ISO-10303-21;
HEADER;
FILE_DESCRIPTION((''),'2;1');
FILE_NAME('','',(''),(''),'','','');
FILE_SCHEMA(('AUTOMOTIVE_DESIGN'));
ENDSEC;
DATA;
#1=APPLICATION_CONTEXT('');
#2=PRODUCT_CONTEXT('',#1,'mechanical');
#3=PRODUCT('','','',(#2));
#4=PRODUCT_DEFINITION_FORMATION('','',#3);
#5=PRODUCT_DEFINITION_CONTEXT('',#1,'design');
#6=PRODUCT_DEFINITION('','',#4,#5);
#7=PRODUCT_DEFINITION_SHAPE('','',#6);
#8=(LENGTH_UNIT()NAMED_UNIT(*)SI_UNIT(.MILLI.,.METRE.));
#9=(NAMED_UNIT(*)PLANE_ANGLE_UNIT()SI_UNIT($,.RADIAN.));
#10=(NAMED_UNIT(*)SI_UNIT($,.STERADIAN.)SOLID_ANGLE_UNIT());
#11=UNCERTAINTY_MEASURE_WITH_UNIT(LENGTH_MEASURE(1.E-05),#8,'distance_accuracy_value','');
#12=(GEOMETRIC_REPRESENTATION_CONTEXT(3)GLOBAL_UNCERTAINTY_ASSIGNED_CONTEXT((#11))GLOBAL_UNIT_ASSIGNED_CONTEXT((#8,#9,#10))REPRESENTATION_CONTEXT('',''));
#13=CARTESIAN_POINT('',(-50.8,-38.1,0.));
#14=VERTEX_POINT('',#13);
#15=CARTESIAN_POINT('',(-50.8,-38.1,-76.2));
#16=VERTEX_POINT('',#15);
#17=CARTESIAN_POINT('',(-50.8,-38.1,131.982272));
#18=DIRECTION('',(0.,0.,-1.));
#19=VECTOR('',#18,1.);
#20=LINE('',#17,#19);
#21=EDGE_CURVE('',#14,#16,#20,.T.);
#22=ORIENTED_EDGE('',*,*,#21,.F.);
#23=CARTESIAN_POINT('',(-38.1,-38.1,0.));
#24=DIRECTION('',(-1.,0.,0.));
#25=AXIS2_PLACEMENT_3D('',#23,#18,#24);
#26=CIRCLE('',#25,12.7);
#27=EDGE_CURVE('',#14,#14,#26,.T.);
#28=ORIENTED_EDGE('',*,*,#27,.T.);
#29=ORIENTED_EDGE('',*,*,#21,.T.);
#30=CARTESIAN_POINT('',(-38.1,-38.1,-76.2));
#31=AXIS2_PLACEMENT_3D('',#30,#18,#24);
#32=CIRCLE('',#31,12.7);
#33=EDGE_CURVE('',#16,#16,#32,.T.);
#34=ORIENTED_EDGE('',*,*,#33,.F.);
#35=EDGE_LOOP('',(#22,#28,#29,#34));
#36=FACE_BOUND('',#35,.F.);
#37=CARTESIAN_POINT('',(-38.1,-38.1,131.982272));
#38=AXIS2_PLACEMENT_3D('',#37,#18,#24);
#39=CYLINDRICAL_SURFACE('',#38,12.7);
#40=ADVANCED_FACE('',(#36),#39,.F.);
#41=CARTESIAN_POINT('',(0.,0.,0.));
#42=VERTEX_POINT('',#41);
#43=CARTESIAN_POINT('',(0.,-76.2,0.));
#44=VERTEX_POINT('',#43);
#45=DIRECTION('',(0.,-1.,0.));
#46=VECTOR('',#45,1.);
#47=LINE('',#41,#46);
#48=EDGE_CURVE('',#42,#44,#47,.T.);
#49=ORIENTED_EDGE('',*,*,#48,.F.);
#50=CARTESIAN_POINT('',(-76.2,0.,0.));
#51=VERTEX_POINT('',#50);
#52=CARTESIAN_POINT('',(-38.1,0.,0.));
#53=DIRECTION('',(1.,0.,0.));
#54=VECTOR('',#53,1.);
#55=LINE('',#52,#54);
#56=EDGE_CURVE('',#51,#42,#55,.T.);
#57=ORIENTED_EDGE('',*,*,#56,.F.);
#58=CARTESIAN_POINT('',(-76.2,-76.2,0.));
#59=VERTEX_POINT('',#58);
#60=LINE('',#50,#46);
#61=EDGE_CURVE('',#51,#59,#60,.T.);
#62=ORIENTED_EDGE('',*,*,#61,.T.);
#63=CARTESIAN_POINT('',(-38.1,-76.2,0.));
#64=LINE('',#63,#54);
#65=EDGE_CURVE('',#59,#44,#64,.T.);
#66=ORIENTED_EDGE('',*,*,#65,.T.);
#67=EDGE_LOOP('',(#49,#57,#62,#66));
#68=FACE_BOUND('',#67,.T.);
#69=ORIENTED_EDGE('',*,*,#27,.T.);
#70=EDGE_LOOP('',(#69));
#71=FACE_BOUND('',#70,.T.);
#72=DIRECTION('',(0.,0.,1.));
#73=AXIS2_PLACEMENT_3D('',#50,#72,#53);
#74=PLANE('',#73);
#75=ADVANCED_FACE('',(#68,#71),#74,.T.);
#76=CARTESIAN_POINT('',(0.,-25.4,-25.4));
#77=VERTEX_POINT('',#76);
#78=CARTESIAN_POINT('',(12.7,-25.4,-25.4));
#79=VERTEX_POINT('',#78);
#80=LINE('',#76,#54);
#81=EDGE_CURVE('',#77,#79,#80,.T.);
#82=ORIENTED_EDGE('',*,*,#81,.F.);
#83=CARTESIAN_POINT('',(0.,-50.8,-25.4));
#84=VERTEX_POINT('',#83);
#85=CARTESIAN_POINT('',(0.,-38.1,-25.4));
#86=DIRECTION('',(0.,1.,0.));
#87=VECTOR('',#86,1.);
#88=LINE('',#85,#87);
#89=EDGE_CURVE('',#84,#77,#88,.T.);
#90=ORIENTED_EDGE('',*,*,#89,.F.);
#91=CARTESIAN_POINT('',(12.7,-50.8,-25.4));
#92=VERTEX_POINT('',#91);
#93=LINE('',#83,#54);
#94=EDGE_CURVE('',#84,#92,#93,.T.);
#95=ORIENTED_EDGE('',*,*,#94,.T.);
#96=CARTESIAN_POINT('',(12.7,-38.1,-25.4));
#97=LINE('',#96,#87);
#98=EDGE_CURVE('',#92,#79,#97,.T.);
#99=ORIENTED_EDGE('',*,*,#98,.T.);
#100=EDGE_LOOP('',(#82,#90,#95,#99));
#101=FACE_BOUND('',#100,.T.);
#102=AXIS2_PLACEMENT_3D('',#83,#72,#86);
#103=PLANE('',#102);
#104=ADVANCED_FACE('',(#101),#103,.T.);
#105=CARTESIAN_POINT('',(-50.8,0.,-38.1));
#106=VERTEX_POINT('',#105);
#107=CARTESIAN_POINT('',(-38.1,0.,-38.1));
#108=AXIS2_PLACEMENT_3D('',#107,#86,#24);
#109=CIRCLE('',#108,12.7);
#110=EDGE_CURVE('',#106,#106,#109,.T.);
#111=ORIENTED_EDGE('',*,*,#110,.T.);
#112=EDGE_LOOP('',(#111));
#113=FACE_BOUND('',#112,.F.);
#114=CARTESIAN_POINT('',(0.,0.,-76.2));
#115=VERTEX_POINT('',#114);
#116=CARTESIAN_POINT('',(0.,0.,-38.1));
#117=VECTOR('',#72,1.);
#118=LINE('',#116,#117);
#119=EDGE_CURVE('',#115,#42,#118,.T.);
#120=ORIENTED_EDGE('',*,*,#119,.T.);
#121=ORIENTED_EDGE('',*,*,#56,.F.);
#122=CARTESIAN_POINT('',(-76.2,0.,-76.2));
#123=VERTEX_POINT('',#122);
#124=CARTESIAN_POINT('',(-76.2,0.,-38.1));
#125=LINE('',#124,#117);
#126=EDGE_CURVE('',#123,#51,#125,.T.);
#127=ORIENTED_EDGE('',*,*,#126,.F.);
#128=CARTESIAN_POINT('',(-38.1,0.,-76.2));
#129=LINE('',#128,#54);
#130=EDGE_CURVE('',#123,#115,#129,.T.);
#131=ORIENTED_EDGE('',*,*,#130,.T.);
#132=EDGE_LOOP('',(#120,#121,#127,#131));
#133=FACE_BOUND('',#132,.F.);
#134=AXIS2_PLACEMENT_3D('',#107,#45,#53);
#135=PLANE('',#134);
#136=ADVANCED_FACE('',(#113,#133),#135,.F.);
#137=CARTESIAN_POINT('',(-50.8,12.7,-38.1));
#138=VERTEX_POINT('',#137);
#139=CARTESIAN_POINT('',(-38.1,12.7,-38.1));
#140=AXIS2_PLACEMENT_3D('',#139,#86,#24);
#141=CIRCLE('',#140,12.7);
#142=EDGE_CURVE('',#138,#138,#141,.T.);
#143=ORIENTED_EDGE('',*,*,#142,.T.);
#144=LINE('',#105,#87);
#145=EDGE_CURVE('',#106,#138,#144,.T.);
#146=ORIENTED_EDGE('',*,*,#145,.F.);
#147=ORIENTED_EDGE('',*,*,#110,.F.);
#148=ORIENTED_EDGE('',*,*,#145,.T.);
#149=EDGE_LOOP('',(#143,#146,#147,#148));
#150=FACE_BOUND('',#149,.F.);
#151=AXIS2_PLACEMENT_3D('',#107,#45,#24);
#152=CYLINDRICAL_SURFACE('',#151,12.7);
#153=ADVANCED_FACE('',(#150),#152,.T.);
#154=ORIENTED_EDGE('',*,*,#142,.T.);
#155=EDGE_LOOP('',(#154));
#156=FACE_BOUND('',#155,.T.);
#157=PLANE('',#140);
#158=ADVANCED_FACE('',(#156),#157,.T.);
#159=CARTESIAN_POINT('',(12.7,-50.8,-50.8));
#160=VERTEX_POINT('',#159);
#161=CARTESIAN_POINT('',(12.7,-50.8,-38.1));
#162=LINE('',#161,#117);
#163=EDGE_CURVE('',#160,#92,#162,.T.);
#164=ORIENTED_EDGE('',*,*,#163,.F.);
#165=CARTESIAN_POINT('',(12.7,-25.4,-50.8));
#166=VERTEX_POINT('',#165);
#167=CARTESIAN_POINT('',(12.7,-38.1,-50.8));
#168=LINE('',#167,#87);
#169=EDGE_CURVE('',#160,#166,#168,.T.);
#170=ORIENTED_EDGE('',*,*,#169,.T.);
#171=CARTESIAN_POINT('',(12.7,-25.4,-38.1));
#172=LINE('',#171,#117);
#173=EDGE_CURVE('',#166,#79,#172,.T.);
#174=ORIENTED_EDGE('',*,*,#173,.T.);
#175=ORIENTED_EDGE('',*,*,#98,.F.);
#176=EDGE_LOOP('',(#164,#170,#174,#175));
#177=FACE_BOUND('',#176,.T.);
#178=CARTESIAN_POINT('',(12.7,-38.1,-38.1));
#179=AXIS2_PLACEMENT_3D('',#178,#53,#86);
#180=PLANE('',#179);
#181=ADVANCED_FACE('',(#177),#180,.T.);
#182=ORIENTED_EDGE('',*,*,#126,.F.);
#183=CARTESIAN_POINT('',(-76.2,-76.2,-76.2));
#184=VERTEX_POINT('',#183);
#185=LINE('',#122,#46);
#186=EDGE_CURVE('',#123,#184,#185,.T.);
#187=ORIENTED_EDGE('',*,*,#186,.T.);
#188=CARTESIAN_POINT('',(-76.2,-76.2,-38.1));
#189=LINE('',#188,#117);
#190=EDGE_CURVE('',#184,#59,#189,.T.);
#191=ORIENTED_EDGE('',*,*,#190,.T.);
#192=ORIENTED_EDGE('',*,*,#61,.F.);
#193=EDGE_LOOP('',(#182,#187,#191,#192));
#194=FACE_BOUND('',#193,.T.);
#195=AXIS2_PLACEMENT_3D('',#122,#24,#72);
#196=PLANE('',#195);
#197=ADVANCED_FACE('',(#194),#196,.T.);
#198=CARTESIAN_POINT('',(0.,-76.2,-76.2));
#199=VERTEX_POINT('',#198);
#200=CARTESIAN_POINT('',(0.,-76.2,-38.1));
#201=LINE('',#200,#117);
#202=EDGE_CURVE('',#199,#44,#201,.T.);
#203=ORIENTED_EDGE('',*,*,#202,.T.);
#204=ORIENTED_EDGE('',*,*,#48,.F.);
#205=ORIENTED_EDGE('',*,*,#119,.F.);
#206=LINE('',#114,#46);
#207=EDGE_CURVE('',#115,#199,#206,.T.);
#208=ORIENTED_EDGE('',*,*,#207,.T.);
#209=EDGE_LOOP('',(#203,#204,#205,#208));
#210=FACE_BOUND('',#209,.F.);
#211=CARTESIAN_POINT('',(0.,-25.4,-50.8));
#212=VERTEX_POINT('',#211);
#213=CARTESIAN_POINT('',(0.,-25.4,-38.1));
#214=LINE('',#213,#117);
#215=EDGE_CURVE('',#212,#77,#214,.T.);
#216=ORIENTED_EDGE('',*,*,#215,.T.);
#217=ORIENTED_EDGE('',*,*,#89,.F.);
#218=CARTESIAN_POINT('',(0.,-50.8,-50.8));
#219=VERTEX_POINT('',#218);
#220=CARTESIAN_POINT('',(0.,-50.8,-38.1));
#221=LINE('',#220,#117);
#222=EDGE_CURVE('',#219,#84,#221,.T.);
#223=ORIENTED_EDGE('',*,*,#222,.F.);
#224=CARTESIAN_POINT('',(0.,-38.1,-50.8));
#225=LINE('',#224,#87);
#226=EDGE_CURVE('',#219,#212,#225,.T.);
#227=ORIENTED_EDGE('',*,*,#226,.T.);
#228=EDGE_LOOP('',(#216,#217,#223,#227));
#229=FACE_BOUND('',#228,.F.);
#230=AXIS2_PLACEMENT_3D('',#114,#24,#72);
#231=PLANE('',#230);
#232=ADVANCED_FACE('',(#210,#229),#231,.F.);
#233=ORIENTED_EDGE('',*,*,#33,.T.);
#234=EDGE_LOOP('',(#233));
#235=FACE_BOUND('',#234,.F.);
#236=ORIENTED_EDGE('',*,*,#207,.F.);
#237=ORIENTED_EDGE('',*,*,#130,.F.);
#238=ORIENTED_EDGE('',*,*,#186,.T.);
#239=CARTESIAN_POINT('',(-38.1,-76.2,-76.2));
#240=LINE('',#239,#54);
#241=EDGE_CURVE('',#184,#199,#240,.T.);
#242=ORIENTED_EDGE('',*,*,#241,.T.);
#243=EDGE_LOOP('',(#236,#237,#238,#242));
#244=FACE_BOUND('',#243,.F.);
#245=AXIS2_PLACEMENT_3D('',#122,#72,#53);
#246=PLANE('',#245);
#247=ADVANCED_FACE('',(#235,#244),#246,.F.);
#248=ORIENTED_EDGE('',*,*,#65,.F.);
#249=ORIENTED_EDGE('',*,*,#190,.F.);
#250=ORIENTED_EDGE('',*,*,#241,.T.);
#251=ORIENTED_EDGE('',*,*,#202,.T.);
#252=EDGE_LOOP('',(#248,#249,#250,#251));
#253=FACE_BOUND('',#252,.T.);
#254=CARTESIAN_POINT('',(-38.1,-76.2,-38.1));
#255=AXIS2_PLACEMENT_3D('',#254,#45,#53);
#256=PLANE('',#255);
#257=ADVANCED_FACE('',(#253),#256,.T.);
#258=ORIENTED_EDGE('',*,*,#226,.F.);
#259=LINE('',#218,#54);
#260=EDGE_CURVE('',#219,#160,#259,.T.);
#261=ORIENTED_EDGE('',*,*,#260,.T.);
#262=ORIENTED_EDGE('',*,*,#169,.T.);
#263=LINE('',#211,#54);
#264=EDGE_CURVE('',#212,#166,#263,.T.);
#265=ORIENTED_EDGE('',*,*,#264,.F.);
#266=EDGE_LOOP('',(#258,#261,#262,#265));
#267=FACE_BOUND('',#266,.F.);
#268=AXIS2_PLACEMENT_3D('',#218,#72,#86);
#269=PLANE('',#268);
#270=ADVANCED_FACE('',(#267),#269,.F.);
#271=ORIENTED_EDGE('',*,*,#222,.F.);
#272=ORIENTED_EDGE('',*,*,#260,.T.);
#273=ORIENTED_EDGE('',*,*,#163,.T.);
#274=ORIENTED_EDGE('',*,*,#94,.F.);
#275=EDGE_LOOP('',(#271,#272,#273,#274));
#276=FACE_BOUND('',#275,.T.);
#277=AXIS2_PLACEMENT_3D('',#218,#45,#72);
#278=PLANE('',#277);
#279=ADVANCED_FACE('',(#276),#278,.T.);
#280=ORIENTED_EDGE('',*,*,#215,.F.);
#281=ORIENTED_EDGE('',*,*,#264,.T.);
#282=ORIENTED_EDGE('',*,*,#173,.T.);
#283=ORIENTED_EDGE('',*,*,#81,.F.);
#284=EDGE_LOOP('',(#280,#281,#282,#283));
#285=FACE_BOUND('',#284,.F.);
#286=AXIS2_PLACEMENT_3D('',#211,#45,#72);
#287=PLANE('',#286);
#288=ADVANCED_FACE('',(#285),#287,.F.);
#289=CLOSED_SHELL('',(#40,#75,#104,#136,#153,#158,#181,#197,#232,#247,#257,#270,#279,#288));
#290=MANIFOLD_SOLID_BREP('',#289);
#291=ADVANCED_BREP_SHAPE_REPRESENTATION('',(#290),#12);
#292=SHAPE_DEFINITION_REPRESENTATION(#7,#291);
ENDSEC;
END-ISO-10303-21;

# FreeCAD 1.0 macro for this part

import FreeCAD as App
import Part
import Sketcher
from FreeCAD import Vector
Q = App.Units.Quantity

doc = App.newDocument("Part")
body = doc.addObject("PartDesign::Body", "Body")

# Sketch on XZ plane
sketch1 = body.newObject("Sketcher::SketchObject", "Sketch")
sketch1.AttachmentSupport = (doc.getObject("XZ_Plane"), [""])
sketch1.MapMode = "FlatFace"
sketch1.addGeometry([
    Part.LineSegment(Vector(-76.2, 0, 0), Vector(-76.2, -76.2, 0)),
    Part.LineSegment(Vector(-76.2, -76.2, 0), Vector(0, -76.2, 0)),
    Part.LineSegment(Vector(0, -76.2, 0), Vector(0, 0, 0)),
    Part.LineSegment(Vector(0, 0, 0), Vector(-76.2, 0, 0)),
], False)
sketch1.addConstraint([
    Sketcher.Constraint("Coincident", 0, 2, 1, 1),
    Sketcher.Constraint("Coincident", 1, 2, 2, 1),
    Sketcher.Constraint("Coincident", 2, 2, 3, 1),
    Sketcher.Constraint("Coincident", 3, 2, 0, 1),
    Sketcher.Constraint("Vertical", 0),
    Sketcher.Constraint("Horizontal", 1),
    Sketcher.Constraint("Vertical", 2),
    Sketcher.Constraint("Horizontal", 3),
    Sketcher.Constraint("Coincident", 2, 2, -1, 1),
    Sketcher.Constraint("Equal", 3, 0),
    Sketcher.Constraint("DistanceX", 1, 1, 1, 2, Q("3 in")),
])
pad1 = body.newObject("PartDesign::Pad", "Pad")
pad1.Profile = sketch1
pad1.Length = Q("3 in")

# Sketch on XY plane
sketch2 = body.newObject("Sketcher::SketchObject", "Sketch001")
sketch2.AttachmentSupport = (doc.getObject("XY_Plane"), [""])
sketch2.MapMode = "FlatFace"
sketch2.addGeometry(Part.Circle(Vector(-38.1, -38.1, 0), Vector(0, 0, 1), 12.7), False)
sketch2.addConstraint([
    Sketcher.Constraint("Diameter", 0, Q("1 in")),
    Sketcher.Constraint("DistanceX", 0, 3, -1, 1, Q("1.5 in")),
    Sketcher.Constraint("DistanceY", 0, 3, -1, 1, Q("1.5 in")),
])
doc.recompute()
hole = body.newObject("PartDesign::Hole", "Hole")
hole.Profile = sketch2
hole.ThreadType = "None"
hole.Diameter = Q("1 in")
hole.DepthType = "ThroughAll"

# Sketch on YZ plane
sketch3 = body.newObject("Sketcher::SketchObject", "Sketch002")
sketch3.AttachmentSupport = (doc.getObject("YZ_Plane"), [""])
sketch3.MapMode = "FlatFace"
sketch3.addGeometry([
    Part.LineSegment(Vector(-50.8, -25.4, 0), Vector(-50.8, -50.8, 0)),
    Part.LineSegment(Vector(-50.8, -50.8, 0), Vector(-25.4, -50.8, 0)),
    Part.LineSegment(Vector(-25.4, -50.8, 0), Vector(-25.4, -25.4, 0)),
    Part.LineSegment(Vector(-25.4, -25.4, 0), Vector(-50.8, -25.4, 0)),
], False)
sketch3.addConstraint([
    Sketcher.Constraint("Coincident", 0, 2, 1, 1),
    Sketcher.Constraint("Coincident", 1, 2, 2, 1),
    Sketcher.Constraint("Coincident", 2, 2, 3, 1),
    Sketcher.Constraint("Coincident", 3, 2, 0, 1),
    Sketcher.Constraint("Vertical", 0),
    Sketcher.Constraint("Horizontal", 1),
    Sketcher.Constraint("Vertical", 2),
    Sketcher.Constraint("Horizontal", 3),
    Sketcher.Constraint("Equal", 3, 0),
    Sketcher.Constraint("DistanceX", 1, 1, 1, 2, Q("1 in")),
    Sketcher.Constraint("DistanceX", 0, 2, -1, 1, Q("2 in")),
    Sketcher.Constraint("DistanceY", 0, 2, -1, 1, Q("2 in")),
])
pad2 = body.newObject("PartDesign::Pad", "Pad001")
pad2.Profile = sketch3
pad2.Length = Q("0.5 in")

# Sketch on XZ plane
sketch4 = body.newObject("Sketcher::SketchObject", "Sketch003")
sketch4.AttachmentSupport = (doc.getObject("XZ_Plane"), [""])
sketch4.MapMode = "FlatFace"
sketch4.addGeometry(Part.Circle(Vector(-38.1, -38.1, 0), Vector(0, 0, 1), 12.7), False)
sketch4.addConstraint([
    Sketcher.Constraint("Diameter", 0, Q("1 in")),
    Sketcher.Constraint("DistanceX", 0, 3, -1, 1, Q("1.5 in")),
    Sketcher.Constraint("DistanceY", 0, 3, -1, 1, Q("1.5 in")),
])
pad3 = body.newObject("PartDesign::Pad", "Pad002")
pad3.Profile = sketch4
pad3.Length = Q("0.5 in")
pad3.Reversed = True

doc.recompute()
